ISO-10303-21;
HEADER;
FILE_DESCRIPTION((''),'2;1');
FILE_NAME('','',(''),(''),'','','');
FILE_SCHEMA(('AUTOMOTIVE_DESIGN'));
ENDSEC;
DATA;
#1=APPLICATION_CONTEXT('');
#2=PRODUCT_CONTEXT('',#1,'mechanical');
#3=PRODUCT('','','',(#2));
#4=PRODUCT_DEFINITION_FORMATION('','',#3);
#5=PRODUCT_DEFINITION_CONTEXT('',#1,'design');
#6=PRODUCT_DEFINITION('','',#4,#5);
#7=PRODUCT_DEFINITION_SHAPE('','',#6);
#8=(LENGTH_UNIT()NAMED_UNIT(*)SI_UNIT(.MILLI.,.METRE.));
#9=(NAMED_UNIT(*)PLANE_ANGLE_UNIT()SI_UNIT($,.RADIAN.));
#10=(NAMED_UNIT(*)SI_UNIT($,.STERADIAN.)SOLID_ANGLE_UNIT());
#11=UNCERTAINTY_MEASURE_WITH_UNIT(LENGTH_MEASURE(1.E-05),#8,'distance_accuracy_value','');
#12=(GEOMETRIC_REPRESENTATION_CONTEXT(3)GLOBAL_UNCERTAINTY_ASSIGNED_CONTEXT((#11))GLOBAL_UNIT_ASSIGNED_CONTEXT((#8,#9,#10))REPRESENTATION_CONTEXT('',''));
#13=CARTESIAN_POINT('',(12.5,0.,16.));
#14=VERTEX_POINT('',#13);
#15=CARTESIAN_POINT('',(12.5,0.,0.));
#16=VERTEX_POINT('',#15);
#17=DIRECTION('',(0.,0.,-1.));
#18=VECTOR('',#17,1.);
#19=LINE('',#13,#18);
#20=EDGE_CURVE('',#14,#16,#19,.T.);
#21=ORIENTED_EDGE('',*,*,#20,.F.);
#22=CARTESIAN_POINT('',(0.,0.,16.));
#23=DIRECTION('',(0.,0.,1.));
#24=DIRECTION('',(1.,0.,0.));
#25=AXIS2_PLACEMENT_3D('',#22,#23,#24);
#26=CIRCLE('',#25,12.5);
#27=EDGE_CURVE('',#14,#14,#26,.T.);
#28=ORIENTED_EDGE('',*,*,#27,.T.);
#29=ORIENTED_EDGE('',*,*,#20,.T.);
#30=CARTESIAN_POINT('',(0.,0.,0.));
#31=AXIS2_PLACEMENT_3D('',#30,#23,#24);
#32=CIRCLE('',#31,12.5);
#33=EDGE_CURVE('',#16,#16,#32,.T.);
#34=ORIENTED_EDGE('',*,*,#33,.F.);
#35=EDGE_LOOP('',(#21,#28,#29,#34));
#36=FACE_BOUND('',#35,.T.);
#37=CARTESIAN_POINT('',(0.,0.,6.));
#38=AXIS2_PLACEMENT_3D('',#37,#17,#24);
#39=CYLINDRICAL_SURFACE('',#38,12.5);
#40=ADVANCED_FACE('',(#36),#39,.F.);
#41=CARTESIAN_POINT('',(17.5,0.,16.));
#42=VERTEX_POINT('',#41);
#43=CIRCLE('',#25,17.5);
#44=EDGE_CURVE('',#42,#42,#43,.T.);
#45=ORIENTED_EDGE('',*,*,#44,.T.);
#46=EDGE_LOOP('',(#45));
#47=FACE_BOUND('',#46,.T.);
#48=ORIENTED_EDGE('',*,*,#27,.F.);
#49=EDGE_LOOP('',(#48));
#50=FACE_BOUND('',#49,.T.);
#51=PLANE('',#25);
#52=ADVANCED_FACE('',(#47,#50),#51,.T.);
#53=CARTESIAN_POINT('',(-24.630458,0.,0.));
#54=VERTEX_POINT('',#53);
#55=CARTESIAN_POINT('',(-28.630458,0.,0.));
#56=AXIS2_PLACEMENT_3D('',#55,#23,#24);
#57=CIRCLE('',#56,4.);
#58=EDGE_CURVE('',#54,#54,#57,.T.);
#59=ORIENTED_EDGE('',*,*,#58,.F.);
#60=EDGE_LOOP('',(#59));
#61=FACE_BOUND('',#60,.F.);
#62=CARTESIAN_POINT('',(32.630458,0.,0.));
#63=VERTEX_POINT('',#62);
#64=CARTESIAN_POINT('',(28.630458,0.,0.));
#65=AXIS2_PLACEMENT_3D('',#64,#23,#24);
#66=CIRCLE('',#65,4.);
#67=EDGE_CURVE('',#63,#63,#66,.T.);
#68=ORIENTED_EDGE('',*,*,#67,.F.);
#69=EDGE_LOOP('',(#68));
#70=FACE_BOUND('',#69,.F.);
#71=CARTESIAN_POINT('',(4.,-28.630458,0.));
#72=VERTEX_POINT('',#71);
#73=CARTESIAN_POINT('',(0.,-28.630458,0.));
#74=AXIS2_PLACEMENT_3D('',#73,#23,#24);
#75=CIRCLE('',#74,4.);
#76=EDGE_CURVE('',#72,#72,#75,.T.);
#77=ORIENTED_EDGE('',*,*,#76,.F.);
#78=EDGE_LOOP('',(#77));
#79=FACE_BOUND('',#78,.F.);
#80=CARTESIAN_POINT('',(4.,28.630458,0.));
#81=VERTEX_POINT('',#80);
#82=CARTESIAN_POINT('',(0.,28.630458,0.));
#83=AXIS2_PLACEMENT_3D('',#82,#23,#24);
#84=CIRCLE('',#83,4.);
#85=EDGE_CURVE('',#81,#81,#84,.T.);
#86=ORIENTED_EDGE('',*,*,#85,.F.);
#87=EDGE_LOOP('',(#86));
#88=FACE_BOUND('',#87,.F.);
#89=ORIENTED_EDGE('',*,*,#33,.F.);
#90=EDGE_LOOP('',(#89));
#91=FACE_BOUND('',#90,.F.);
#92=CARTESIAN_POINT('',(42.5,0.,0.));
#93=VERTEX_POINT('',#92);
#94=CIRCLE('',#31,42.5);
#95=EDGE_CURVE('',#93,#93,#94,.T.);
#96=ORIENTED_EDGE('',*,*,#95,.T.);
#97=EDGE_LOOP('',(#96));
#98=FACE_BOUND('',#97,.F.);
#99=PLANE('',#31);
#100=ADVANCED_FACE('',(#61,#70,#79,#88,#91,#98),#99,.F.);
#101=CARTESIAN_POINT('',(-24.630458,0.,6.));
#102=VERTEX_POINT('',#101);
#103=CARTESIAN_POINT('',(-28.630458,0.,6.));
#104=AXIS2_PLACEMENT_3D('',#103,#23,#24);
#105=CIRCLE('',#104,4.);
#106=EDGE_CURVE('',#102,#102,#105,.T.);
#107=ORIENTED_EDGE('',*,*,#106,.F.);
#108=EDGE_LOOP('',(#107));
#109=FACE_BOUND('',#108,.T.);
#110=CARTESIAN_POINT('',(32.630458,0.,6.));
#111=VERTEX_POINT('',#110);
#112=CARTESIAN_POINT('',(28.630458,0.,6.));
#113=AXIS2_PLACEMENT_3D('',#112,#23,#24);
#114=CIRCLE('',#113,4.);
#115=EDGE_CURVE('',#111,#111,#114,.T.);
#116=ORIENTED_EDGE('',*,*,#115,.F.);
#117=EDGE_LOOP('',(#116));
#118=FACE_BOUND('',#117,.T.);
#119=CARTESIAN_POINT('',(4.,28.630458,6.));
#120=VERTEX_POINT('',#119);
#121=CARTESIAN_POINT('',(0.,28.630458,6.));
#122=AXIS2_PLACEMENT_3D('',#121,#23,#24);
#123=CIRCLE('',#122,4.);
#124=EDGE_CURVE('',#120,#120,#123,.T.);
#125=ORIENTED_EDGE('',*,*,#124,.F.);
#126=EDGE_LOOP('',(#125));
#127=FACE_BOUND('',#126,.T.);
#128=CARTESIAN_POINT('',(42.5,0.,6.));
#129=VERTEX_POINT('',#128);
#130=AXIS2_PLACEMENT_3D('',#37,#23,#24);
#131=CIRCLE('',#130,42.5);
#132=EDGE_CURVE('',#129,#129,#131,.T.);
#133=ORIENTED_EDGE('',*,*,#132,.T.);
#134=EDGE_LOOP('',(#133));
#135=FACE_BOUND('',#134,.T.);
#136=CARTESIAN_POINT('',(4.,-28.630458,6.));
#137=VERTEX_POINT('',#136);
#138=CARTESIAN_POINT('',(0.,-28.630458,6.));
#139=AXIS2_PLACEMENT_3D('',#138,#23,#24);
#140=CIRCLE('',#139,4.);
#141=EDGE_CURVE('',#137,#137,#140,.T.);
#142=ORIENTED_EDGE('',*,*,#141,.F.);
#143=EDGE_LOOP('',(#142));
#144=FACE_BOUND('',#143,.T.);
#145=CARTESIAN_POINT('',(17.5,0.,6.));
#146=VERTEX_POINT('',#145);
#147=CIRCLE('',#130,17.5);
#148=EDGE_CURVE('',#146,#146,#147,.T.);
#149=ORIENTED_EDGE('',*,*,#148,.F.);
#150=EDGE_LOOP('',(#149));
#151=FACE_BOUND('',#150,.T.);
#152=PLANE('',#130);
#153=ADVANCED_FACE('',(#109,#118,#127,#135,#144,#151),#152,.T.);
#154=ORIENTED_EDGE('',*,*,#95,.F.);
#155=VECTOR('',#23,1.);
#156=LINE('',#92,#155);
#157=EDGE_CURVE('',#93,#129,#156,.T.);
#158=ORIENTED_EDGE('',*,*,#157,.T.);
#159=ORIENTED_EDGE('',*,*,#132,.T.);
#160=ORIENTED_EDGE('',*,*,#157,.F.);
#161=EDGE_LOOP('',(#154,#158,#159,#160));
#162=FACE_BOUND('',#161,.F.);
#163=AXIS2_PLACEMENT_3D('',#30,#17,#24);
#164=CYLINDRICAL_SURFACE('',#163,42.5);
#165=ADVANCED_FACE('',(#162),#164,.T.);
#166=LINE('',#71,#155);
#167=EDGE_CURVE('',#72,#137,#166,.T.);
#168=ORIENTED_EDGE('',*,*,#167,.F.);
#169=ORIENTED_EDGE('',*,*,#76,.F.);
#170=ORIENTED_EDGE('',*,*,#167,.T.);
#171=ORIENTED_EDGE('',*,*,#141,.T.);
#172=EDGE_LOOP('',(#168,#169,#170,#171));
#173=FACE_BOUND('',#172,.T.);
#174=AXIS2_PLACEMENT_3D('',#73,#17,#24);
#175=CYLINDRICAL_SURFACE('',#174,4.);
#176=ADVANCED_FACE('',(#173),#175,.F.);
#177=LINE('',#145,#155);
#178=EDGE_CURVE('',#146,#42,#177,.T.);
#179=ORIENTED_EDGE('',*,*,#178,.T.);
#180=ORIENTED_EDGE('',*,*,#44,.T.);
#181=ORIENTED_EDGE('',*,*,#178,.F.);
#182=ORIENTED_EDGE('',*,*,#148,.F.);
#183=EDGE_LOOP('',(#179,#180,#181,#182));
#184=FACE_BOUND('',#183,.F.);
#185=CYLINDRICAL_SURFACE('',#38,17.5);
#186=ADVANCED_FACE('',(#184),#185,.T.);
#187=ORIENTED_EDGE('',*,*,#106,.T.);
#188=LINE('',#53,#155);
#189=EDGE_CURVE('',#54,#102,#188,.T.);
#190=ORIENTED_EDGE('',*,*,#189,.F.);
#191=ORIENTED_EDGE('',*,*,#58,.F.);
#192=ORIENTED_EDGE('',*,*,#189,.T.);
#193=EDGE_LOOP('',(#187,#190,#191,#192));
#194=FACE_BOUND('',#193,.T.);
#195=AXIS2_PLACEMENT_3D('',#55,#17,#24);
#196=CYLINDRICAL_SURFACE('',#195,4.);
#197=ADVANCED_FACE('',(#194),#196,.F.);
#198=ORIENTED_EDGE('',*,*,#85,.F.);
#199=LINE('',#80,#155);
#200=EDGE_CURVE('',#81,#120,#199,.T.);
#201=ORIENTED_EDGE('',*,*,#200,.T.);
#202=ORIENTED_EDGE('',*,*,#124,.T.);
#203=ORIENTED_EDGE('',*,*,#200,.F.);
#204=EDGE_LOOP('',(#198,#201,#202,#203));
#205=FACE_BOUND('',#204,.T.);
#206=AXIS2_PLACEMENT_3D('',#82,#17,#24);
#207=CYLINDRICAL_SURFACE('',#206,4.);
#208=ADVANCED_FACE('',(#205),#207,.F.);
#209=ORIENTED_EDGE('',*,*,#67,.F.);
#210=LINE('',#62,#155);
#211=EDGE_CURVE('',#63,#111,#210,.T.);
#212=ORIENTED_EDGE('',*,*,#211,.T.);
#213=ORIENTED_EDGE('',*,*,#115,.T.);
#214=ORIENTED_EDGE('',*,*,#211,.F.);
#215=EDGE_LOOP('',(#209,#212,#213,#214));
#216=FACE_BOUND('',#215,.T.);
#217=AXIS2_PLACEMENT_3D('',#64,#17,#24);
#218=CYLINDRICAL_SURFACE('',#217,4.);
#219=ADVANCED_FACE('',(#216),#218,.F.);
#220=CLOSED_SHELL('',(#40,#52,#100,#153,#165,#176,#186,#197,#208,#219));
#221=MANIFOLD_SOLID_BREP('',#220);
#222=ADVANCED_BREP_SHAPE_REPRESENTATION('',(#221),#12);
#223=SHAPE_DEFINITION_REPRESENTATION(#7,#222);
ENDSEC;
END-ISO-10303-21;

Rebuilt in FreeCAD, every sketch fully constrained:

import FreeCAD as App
import Part
import Sketcher
from FreeCAD import Vector
Q = App.Units.Quantity

doc = App.newDocument("Part")
body = doc.addObject("PartDesign::Body", "Body")

# Sketch on XY plane
sketch1 = body.newObject("Sketcher::SketchObject", "Sketch")
sketch1.AttachmentSupport = (doc.getObject("XY_Plane"), [""])
sketch1.MapMode = "FlatFace"
sketch1.addGeometry(Part.Circle(Vector(0, 0, 0), Vector(0, 0, 1), 42.5), False)
sketch1.addGeometry(Part.Circle(Vector(0, -28.6, 0), Vector(0, 0, 1), 4), False)
sketch1.addGeometry(Part.Circle(Vector(-28.6, 0, 0), Vector(0, 0, 1), 4), False)
sketch1.addGeometry(Part.Circle(Vector(0, 28.6, 0), Vector(0, 0, 1), 4), False)
sketch1.addGeometry(Part.Circle(Vector(0, 0, 0), Vector(0, 0, 1), 12.5), False)
sketch1.addGeometry(Part.Circle(Vector(28.6, 0, 0), Vector(0, 0, 1), 4), False)
sketch1.addConstraint(Sketcher.Constraint("Coincident", 0, 3, -1, 1))
sketch1.addConstraint(Sketcher.Constraint("Coincident", 4, 3, -1, 1))
sketch1.addConstraint(Sketcher.Constraint("Equal", 1, 2))
sketch1.addConstraint(Sketcher.Constraint("Equal", 2, 3))
sketch1.addConstraint(Sketcher.Constraint("Equal", 3, 5))
sketch1.addConstraint(Sketcher.Constraint("Symmetric", 1, 3, 3, 3, -1, 1))
sketch1.addConstraint(Sketcher.Constraint("Symmetric", 2, 3, 5, 3, -1, 1))
sketch1.addConstraint(Sketcher.Constraint("PointOnObject", 1, 3, -2))
sketch1.addConstraint(Sketcher.Constraint("PointOnObject", 2, 3, -1))
sketch1.addConstraint(Sketcher.Constraint("Diameter", 0, Q("85 mm")))
sketch1.addConstraint(Sketcher.Constraint("Diameter", 1, Q("8 mm")))
sketch1.addConstraint(Sketcher.Constraint("Diameter", 4, Q("25 mm")))
sketch1.addConstraint(Sketcher.Constraint("DistanceY", 1, 3, -1, 1, Q("28.630458 mm")))
sketch1.addConstraint(Sketcher.Constraint("DistanceX", 2, 3, -1, 1, Q("28.630458 mm")))
pad1 = body.newObject("PartDesign::Pad", "Pad")
pad1.Profile = sketch1
pad1.Length = 6

# Sketch on XY plane
sketch2 = body.newObject("Sketcher::SketchObject", "Sketch001")
sketch2.AttachmentSupport = (doc.getObject("XY_Plane"), [""])
sketch2.MapMode = "FlatFace"
sketch2.AttachmentOffset = App.Placement(Vector(0, 0, 6), App.Rotation())
sketch2.addGeometry(Part.Circle(Vector(0, 0, 0), Vector(0, 0, 1), 18), False)
sketch2.addGeometry(Part.Circle(Vector(0, 0, 0), Vector(0, 0, 1), 12), False)
sketch2.addConstraint(Sketcher.Constraint("Coincident", 0, 3, -1, 1))
sketch2.addConstraint(Sketcher.Constraint("Coincident", 1, 3, -1, 1))
sketch2.addConstraint(Sketcher.Constraint("Diameter", 0, Q("35 mm")))
sketch2.addConstraint(Sketcher.Constraint("Diameter", 1, Q("25 mm")))
pad2 = body.newObject("PartDesign::Pad", "Pad001")
pad2.Profile = sketch2
pad2.Length = 10

doc.recompute()
